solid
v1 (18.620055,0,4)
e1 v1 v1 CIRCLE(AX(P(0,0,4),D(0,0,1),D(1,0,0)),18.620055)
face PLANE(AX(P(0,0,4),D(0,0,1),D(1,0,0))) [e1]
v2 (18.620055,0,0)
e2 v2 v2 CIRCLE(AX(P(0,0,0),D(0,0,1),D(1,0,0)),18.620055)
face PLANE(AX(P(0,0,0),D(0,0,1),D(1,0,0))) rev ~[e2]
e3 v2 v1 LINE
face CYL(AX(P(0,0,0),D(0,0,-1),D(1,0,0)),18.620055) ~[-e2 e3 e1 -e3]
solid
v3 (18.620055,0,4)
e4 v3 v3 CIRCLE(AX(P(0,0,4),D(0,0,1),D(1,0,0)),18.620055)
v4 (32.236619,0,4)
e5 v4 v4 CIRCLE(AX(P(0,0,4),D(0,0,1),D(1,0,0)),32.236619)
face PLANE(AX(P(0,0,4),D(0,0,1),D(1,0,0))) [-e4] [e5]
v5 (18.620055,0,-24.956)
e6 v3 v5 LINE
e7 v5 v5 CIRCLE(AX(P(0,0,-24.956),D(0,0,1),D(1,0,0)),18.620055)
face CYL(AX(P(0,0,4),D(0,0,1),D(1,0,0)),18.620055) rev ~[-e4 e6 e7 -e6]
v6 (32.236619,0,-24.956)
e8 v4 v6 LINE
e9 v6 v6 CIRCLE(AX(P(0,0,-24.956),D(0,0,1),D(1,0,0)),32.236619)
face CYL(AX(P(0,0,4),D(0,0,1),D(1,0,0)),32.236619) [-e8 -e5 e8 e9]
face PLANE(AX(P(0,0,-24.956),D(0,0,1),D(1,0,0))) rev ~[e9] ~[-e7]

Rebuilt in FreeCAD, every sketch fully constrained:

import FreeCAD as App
import Part
import Sketcher
from FreeCAD import Vector

doc = App.newDocument("Part")
params = doc.addObject("Spreadsheet::Sheet", "Params")
for row, (alias, value) in enumerate([
    ("pad1_length", "4 mm"),
    ("pad2_length", "28.956 mm"),
], start=1):
    params.set(f"A{row}", alias)
    params.set(f"B{row}", "=" + value)
    params.setAlias(f"B{row}", alias)

body = doc.addObject("PartDesign::Body", "Body")

sketch1 = doc.addObject("Sketcher::SketchObject", "Sketch")
body.addObject(sketch1)
sketch1.AttachmentSupport = (doc.XY_Plane, [""])
sketch1.MapMode = "FlatFace"
sketch1.addGeometry(Part.Circle(Vector(0, 0, 0), Vector(0, 0, 1), 19), False)
sketch1.addConstraint(Sketcher.Constraint("Coincident", 0, 3, -1, 1))
sketch1.addConstraint(Sketcher.Constraint("Diameter", 0, 37.24011))
pad1 = doc.addObject("PartDesign::Pad", "Pad")
body.addObject(pad1)
pad1.Profile = sketch1
pad1.setExpression("Length", "Params.pad1_length")
body2 = doc.addObject("PartDesign::Body", "Body001")

sketch2 = doc.addObject("Sketcher::SketchObject", "Sketch001")
body2.addObject(sketch2)
sketch2.AttachmentSupport = (doc.getObject("XY_Plane001"), [""])
sketch2.MapMode = "FlatFace"
sketch2.AttachmentOffset = App.Placement(Vector(0, 0, 4), App.Rotation())
sketch2.addGeometry(Part.Circle(Vector(0, 0, 0), Vector(0, 0, 1), 32), False)
sketch2.addGeometry(Part.Circle(Vector(0, 0, 0), Vector(0, 0, 1), 19), False)
sketch2.addConstraint(Sketcher.Constraint("Coincident", 0, 3, -1, 1))
sketch2.addConstraint(Sketcher.Constraint("Coincident", 1, 3, -1, 1))
sketch2.addConstraint(Sketcher.Constraint("Diameter", 1, 37.24011))
sketch2.addConstraint(Sketcher.Constraint("Diameter", 0, 64.473238))
pad2 = doc.addObject("PartDesign::Pad", "Pad001")
body2.addObject(pad2)
pad2.Profile = sketch2
pad2.setExpression("Length", "Params.pad2_length")
pad2.Reversed = True

doc.recompute()
